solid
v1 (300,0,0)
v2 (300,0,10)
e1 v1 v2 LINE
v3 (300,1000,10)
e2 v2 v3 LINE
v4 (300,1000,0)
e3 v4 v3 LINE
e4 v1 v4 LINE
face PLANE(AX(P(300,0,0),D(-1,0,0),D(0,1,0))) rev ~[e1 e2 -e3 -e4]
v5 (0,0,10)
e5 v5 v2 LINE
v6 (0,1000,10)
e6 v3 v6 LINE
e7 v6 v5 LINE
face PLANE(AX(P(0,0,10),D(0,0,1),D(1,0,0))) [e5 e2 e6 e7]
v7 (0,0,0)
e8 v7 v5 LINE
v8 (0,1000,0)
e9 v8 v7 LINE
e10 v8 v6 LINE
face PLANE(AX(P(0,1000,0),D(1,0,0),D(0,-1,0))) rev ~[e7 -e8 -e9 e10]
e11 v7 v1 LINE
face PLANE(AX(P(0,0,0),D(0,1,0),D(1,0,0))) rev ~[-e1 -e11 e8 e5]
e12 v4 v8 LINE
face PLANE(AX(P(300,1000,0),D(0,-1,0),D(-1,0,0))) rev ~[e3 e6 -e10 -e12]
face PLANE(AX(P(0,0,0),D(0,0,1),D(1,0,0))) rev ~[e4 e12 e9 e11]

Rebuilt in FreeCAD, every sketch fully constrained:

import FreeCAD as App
import Part
import Sketcher
from FreeCAD import Vector
Q = App.Units.Quantity


def add_polygon(sketch, points):
    """Adds a closed chain of lines whose ends are joined by coincident constraints."""
    first, n = sketch.GeometryCount, len(points)
    for a, b in zip(points, points[1:] + points[:1]):
        sketch.addGeometry(Part.LineSegment(App.Vector(*a, 0), App.Vector(*b, 0)), False)
    for i in range(n):
        sketch.addConstraint(Sketcher.Constraint("Coincident", first + i, 2, first + (i + 1) % n, 1))

doc = App.newDocument("Part")
body = doc.addObject("PartDesign::Body", "Body")

# Sketch on XY plane
sketch1 = body.newObject("Sketcher::SketchObject", "Sketch")
sketch1.AttachmentSupport = (doc.getObject("XY_Plane"), [""])
sketch1.MapMode = "FlatFace"
add_polygon(sketch1, [(0, 1000), (0, 0), (300, 0), (300, 1000)])  # lines 0-3
sketch1.addConstraint(Sketcher.Constraint("Vertical", 0))
sketch1.addConstraint(Sketcher.Constraint("Horizontal", 1))
sketch1.addConstraint(Sketcher.Constraint("Vertical", 2))
sketch1.addConstraint(Sketcher.Constraint("Horizontal", 3))
sketch1.addConstraint(Sketcher.Constraint("Coincident", 0, 2, -1, 1))
sketch1.addConstraint(Sketcher.Constraint("DistanceX", 1, 1, 1, 2, Q("300 mm")))
sketch1.addConstraint(Sketcher.Constraint("DistanceY", 0, 2, 0, 1, Q("1000 mm")))
pad1 = body.newObject("PartDesign::Pad", "Pad")
pad1.Profile = sketch1
pad1.Length = 10

doc.recompute()
